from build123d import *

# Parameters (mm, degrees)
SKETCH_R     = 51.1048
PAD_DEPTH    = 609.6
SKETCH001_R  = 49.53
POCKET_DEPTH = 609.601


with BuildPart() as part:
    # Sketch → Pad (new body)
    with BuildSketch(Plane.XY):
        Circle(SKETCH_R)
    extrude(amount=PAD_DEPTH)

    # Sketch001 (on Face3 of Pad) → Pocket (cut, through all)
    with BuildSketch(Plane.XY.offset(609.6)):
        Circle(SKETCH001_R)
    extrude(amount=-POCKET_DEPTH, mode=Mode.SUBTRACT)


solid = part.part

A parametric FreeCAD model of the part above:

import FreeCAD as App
import Part
import Sketcher
from FreeCAD import Vector
Q = App.Units.Quantity

doc = App.newDocument("Part")
body = doc.addObject("PartDesign::Body", "Body")

# Sketch on XY plane
sketch1 = body.newObject("Sketcher::SketchObject", "Sketch")
sketch1.AttachmentSupport = (doc.getObject("XY_Plane"), [""])
sketch1.MapMode = "FlatFace"
sketch1.addGeometry(Part.Circle(Vector(0, 0, 0), Vector(0, 0, 1), 51), False)
sketch1.addConstraint([
    Sketcher.Constraint("Coincident", 0, 3, -1, 1),
    Sketcher.Constraint("Diameter", 0, Q("4.024 in")),
])
pad1 = body.newObject("PartDesign::Pad", "Pad")
pad1.Profile = sketch1
pad1.Length = Q("24 in")

# Sketch on XY plane
sketch2 = body.newObject("Sketcher::SketchObject", "Sketch001")
sketch2.AttachmentSupport = (doc.getObject("XY_Plane"), [""])
sketch2.MapMode = "FlatFace"
sketch2.AttachmentOffset = App.Placement(Vector(0, 0, 24 * 25.4), App.Rotation())
sketch2.addGeometry(Part.Circle(Vector(0, 0, 0), Vector(0, 0, 1), 50), False)
sketch2.addConstraint([
    Sketcher.Constraint("Coincident", 0, 3, -1, 1),
    Sketcher.Constraint("Diameter", 0, Q("3.9 in")),
])
pocket1 = body.newObject("PartDesign::Pocket", "Pocket")
pocket1.Profile = sketch2
pocket1.Type = "ThroughAll"

doc.recompute()
